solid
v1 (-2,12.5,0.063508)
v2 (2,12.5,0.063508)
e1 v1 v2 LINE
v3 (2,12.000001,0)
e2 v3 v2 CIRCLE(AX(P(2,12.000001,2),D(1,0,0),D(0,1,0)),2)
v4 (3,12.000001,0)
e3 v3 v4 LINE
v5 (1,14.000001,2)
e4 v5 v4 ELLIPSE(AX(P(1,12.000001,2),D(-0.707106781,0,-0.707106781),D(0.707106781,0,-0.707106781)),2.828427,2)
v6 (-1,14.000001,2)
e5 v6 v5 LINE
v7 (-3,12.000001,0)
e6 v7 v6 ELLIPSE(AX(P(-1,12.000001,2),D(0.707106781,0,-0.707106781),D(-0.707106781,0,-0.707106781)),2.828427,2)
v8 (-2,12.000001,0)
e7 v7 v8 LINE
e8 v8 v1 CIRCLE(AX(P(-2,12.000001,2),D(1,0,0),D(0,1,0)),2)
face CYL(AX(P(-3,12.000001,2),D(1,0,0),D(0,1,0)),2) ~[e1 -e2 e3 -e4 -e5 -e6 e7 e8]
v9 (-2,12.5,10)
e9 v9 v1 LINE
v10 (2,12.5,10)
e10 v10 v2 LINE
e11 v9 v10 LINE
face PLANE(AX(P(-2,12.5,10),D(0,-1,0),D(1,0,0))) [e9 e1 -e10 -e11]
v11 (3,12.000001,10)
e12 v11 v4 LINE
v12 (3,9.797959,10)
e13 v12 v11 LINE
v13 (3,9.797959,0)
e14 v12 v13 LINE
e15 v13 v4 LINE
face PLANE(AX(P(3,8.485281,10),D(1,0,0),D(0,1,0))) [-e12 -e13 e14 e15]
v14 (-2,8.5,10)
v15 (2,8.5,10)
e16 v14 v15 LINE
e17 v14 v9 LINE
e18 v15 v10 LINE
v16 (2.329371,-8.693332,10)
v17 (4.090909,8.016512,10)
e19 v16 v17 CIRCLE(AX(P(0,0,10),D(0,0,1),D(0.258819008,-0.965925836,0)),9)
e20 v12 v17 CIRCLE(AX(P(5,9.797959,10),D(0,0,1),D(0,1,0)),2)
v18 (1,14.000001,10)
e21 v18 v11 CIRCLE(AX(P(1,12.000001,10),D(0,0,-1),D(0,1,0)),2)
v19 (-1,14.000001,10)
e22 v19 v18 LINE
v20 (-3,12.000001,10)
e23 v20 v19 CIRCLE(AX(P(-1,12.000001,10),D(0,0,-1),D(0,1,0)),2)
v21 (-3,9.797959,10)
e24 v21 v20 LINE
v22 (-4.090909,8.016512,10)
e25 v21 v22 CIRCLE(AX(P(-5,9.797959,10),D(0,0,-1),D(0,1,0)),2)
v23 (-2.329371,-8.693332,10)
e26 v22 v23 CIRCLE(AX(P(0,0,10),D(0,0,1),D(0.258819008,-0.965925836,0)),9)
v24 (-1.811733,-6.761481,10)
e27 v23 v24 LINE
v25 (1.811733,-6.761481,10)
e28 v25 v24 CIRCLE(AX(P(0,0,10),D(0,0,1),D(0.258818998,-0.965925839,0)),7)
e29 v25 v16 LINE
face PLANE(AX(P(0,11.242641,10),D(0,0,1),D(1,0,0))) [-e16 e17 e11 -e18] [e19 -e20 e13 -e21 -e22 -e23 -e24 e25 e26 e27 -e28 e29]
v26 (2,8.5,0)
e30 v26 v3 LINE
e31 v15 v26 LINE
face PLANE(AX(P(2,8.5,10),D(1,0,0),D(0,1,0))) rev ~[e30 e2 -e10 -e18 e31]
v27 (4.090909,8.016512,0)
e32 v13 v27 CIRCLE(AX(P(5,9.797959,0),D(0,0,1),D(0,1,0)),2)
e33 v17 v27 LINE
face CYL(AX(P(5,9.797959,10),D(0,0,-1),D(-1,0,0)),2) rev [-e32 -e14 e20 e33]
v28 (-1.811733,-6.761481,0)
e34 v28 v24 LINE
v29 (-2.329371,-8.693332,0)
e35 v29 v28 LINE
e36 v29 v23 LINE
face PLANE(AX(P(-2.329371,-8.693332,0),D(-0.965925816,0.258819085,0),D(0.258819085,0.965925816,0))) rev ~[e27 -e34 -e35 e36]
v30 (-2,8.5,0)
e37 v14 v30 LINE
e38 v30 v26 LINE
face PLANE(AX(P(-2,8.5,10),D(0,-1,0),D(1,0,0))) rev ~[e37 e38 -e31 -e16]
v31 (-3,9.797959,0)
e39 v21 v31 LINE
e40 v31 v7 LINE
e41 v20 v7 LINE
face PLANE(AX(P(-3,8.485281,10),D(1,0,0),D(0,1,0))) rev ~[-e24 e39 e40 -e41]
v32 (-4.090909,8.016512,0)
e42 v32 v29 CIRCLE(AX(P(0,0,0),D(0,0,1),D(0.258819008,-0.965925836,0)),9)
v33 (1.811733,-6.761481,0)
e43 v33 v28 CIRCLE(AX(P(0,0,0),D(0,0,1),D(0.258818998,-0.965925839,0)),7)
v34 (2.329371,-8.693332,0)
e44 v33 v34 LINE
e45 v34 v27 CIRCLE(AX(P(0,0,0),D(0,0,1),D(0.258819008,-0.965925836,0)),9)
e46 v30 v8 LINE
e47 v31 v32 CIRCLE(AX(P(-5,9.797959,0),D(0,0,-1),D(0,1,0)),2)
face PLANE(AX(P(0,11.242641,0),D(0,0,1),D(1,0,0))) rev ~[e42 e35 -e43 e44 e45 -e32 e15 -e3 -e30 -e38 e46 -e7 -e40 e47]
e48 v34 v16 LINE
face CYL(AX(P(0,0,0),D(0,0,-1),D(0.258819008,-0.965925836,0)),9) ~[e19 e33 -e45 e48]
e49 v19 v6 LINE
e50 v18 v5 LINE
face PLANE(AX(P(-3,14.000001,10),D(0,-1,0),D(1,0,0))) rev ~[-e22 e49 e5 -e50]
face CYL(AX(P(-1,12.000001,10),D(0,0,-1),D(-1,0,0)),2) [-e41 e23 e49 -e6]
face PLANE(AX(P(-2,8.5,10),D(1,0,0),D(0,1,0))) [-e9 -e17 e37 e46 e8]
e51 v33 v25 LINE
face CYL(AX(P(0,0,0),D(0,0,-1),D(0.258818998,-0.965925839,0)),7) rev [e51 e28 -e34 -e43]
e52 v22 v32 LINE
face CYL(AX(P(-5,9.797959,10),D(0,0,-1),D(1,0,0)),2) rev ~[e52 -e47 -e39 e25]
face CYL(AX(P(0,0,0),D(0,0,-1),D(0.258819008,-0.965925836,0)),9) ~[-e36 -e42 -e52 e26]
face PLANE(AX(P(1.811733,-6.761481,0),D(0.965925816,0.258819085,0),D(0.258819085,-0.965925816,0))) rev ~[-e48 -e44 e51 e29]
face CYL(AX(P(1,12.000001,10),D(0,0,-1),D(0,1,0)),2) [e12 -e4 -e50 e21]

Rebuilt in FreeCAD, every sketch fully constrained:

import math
import FreeCAD as App
import Part
import Sketcher
from FreeCAD import Vector
Q = App.Units.Quantity


def edges_at(feature, points):
    """Names of the edges that pass closest to the given points."""
    edges = feature.Shape.Edges
    near = lambda p: min(range(len(edges)), key=lambda i: edges[i].distToShape(Part.Vertex(*p))[0])
    return sorted({f"Edge{near(p) + 1}" for p in points})

doc = App.newDocument("Part")
params = doc.addObject("Spreadsheet::Sheet", "Params")
for row, (alias, value) in enumerate([
    ("sketch1_radius", "9 mm"),
    ("sketch1_radius2", "7 mm"),
    ("pad1_length", "10 mm"),
    ("sketch2_width", "6 mm"),
    ("pad2_length", "10 mm"),
    ("fillet_radius", "2 mm"),
    ("sketch3_width", "4 mm"),
], start=1):
    params.set(f"A{row}", alias)
    params.set(f"B{row}", "=" + value)
    params.setAlias(f"B{row}", alias)

body = doc.addObject("PartDesign::Body", "Body")

# Sketch on XY plane
sketch1 = doc.addObject("Sketcher::SketchObject", "Sketch")
body.addObject(sketch1)
sketch1.AttachmentSupport = (doc.XY_Plane, [""])
sketch1.MapMode = "FlatFace"
sketch1.addGeometry([
    Part.ArcOfCircle(Part.Circle(Vector(0, 0, 0), Vector(0, 0, 1), 9), math.radians(-75), math.radians(255)),
    Part.LineSegment(Vector(-2.3, -8.7, 0), Vector(-1.8, -6.8, 0)),
    Part.ArcOfCircle(Part.Circle(Vector(0, 0, 0), Vector(0, 0, 1), 7), math.radians(-75), math.radians(255)),
    Part.LineSegment(Vector(1.8, -6.8, 0), Vector(2.3, -8.7, 0)),
], False)
sketch1.addConstraint([
    Sketcher.Constraint("Coincident", 0, 2, 1, 1),
    Sketcher.Constraint("Coincident", 1, 2, 2, 2),
    Sketcher.Constraint("Coincident", 2, 1, 3, 1),
    Sketcher.Constraint("Coincident", 3, 2, 0, 1),
    Sketcher.Constraint("Coincident", 0, 3, -1, 1),
    Sketcher.Constraint("Coincident", 2, 3, -1, 1),
    Sketcher.Constraint("Horizontal", 1, 2, 2, 1),
    Sketcher.Constraint("Horizontal", 0, 2, 3, 2),
    Sketcher.Constraint("Radius", 0, Q("9 mm")),
    Sketcher.Constraint("Radius", 2, Q("7 mm")),
    Sketcher.Constraint("Angle", 1, Q("74.999998 deg")),
    Sketcher.Constraint("DistanceX", 0, 2, -1, 1, Q("2.329371 mm")),
])
sketch1.setExpression("Constraints[8]", "Params.sketch1_radius")
sketch1.setExpression("Constraints[9]", "Params.sketch1_radius2")
pad1 = doc.addObject("PartDesign::Pad", "Pad")
body.addObject(pad1)
pad1.Profile = sketch1
pad1.setExpression("Length", "Params.pad1_length")

# Sketch on XY plane
sketch2 = doc.addObject("Sketcher::SketchObject", "Sketch001")
body.addObject(sketch2)
sketch2.AttachmentSupport = (doc.XY_Plane, [""])
sketch2.MapMode = "FlatFace"
sketch2.AttachmentOffset = App.Placement(Vector(0, 0, 10), App.Rotation())
sketch2.addGeometry([
    Part.LineSegment(Vector(-3, 14, 0), Vector(-3, 8, 0)),
    Part.LineSegment(Vector(-3, 8, 0), Vector(3, 8, 0)),
    Part.LineSegment(Vector(3, 8, 0), Vector(3, 14, 0)),
    Part.LineSegment(Vector(3, 14, 0), Vector(-3, 14, 0)),
], False)
sketch2.addConstraint([
    Sketcher.Constraint("Coincident", 0, 2, 1, 1),
    Sketcher.Constraint("Coincident", 1, 2, 2, 1),
    Sketcher.Constraint("Coincident", 2, 2, 3, 1),
    Sketcher.Constraint("Coincident", 3, 2, 0, 1),
    Sketcher.Constraint("Vertical", 0),
    Sketcher.Constraint("Horizontal", 1),
    Sketcher.Constraint("Vertical", 2),
    Sketcher.Constraint("Horizontal", 3),
    Sketcher.Constraint("DistanceX", 1, 1, 1, 2, Q("6 mm")),
    Sketcher.Constraint("DistanceX", 0, 2, -1, 1, Q("3 mm")),
    Sketcher.Constraint("DistanceY", -1, 1, 2, 2, Q("14.000001 mm")),
    Sketcher.Constraint("DistanceY", 0, 2, 0, 1, Q("5.514719 mm")),
])
sketch2.setExpression("Constraints[8]", "Params.sketch2_width")
pad2 = doc.addObject("PartDesign::Pad", "Pad001")
body.addObject(pad2)
pad2.Profile = sketch2
pad2.setExpression("Length", "Params.pad2_length")
pad2.Reversed = True
doc.recompute()

fillet = doc.addObject("PartDesign::Fillet", "Fillet")
body.addObject(fillet)
fillet.Base = (pad2, edges_at(pad2, [
    (-3, 14, 5),
    (0, 14, 0),
    (3, 14, 5),
    (3, 8.485, 5),
    (-3, 8.485, 5),
]))
fillet.setExpression("Radius", "Params.fillet_radius")

# Sketch on XY plane
sketch3 = doc.addObject("Sketcher::SketchObject", "Sketch002")
body.addObject(sketch3)
sketch3.AttachmentSupport = (doc.XY_Plane, [""])
sketch3.MapMode = "FlatFace"
sketch3.AttachmentOffset = App.Placement(Vector(0, 0, 10), App.Rotation())
sketch3.addGeometry([
    Part.LineSegment(Vector(-2, 12.5, 0), Vector(-2, 8.5, 0)),
    Part.LineSegment(Vector(-2, 8.5, 0), Vector(2, 8.5, 0)),
    Part.LineSegment(Vector(2, 8.5, 0), Vector(2, 12.5, 0)),
    Part.LineSegment(Vector(2, 12.5, 0), Vector(-2, 12.5, 0)),
], False)
sketch3.addConstraint([
    Sketcher.Constraint("Coincident", 0, 2, 1, 1),
    Sketcher.Constraint("Coincident", 1, 2, 2, 1),
    Sketcher.Constraint("Coincident", 2, 2, 3, 1),
    Sketcher.Constraint("Coincident", 3, 2, 0, 1),
    Sketcher.Constraint("Vertical", 0),
    Sketcher.Constraint("Horizontal", 1),
    Sketcher.Constraint("Vertical", 2),
    Sketcher.Constraint("Horizontal", 3),
    Sketcher.Constraint("Equal", 3, 0),
    Sketcher.Constraint("DistanceX", 1, 1, 1, 2, Q("4 mm")),
    Sketcher.Constraint("DistanceX", 0, 2, -1, 1, Q("2 mm")),
    Sketcher.Constraint("DistanceY", -1, 1, 0, 2, Q("8.5 mm")),
])
sketch3.setExpression("Constraints[9]", "Params.sketch3_width")
pocket1 = doc.addObject("PartDesign::Pocket", "Pocket")
body.addObject(pocket1)
pocket1.Profile = sketch3
pocket1.Type = "ThroughAll"

doc.recompute()
